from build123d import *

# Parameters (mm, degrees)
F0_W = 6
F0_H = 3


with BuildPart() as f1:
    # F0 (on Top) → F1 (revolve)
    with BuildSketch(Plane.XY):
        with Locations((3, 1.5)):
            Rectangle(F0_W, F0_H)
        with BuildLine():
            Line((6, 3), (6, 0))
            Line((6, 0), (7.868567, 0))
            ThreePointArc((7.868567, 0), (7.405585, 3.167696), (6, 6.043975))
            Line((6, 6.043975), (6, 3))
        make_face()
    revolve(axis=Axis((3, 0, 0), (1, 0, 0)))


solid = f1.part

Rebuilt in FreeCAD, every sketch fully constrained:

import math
import FreeCAD as App
import Part
import Sketcher

doc = App.newDocument("Part")
body = doc.addObject("PartDesign::Body", "Body")

sketch1 = body.newObject("Sketcher::SketchObject", "Sketch")
sketch1.AttachmentSupport = (doc.getObject("XY_Plane"), [""])
sketch1.MapMode = "FlatFace"
sketch1.addGeometry([
    Part.LineSegment(App.Vector(0, 3, 0), App.Vector(0, 0, 0)),
    Part.LineSegment(App.Vector(0, 0, 0), App.Vector(7.868567, 0, 0)),
    Part.ArcOfCircle(Part.Circle(App.Vector(-2.518565, 0.099527, 0), App.Vector(0, 0, 1), 10.387609), math.radians(-0.548975), math.radians(34.908212)),
    Part.LineSegment(App.Vector(6, 6.043975, 0), App.Vector(6, 3, 0)),
    Part.LineSegment(App.Vector(6, 3, 0), App.Vector(0, 3, 0)),
], False)
sketch1.addConstraint([
    Sketcher.Constraint("Coincident", 0, 2, 1, 1),
    Sketcher.Constraint("Coincident", 1, 2, 2, 1),
    Sketcher.Constraint("Coincident", 2, 2, 3, 1),
    Sketcher.Constraint("Coincident", 3, 2, 4, 1),
    Sketcher.Constraint("Coincident", 4, 2, 0, 1),
    Sketcher.Constraint("Vertical", 0),
    Sketcher.Constraint("Horizontal", 1),
    Sketcher.Constraint("Vertical", 3),
    Sketcher.Constraint("Horizontal", 4),
    Sketcher.Constraint("Coincident", 0, 2, -1, 1),
    Sketcher.Constraint("DistanceX", 4, 2, 4, 1, 6.0),
    Sketcher.Constraint("DistanceY", 0, 2, 0, 1, 3.0),
    Sketcher.Constraint("Radius", 2, 10.387609),
    Sketcher.Constraint("DistanceX", 1, 1, 1, 2, 7.868567),
    Sketcher.Constraint("DistanceY", 3, 2, 3, 1, 3.043975),
])
revolution = body.newObject("PartDesign::Revolution", "Revolution")
revolution.Profile = sketch1
revolution.ReferenceAxis = (sketch1, ["H_Axis"])
revolution.Angle = 360

doc.recompute()
